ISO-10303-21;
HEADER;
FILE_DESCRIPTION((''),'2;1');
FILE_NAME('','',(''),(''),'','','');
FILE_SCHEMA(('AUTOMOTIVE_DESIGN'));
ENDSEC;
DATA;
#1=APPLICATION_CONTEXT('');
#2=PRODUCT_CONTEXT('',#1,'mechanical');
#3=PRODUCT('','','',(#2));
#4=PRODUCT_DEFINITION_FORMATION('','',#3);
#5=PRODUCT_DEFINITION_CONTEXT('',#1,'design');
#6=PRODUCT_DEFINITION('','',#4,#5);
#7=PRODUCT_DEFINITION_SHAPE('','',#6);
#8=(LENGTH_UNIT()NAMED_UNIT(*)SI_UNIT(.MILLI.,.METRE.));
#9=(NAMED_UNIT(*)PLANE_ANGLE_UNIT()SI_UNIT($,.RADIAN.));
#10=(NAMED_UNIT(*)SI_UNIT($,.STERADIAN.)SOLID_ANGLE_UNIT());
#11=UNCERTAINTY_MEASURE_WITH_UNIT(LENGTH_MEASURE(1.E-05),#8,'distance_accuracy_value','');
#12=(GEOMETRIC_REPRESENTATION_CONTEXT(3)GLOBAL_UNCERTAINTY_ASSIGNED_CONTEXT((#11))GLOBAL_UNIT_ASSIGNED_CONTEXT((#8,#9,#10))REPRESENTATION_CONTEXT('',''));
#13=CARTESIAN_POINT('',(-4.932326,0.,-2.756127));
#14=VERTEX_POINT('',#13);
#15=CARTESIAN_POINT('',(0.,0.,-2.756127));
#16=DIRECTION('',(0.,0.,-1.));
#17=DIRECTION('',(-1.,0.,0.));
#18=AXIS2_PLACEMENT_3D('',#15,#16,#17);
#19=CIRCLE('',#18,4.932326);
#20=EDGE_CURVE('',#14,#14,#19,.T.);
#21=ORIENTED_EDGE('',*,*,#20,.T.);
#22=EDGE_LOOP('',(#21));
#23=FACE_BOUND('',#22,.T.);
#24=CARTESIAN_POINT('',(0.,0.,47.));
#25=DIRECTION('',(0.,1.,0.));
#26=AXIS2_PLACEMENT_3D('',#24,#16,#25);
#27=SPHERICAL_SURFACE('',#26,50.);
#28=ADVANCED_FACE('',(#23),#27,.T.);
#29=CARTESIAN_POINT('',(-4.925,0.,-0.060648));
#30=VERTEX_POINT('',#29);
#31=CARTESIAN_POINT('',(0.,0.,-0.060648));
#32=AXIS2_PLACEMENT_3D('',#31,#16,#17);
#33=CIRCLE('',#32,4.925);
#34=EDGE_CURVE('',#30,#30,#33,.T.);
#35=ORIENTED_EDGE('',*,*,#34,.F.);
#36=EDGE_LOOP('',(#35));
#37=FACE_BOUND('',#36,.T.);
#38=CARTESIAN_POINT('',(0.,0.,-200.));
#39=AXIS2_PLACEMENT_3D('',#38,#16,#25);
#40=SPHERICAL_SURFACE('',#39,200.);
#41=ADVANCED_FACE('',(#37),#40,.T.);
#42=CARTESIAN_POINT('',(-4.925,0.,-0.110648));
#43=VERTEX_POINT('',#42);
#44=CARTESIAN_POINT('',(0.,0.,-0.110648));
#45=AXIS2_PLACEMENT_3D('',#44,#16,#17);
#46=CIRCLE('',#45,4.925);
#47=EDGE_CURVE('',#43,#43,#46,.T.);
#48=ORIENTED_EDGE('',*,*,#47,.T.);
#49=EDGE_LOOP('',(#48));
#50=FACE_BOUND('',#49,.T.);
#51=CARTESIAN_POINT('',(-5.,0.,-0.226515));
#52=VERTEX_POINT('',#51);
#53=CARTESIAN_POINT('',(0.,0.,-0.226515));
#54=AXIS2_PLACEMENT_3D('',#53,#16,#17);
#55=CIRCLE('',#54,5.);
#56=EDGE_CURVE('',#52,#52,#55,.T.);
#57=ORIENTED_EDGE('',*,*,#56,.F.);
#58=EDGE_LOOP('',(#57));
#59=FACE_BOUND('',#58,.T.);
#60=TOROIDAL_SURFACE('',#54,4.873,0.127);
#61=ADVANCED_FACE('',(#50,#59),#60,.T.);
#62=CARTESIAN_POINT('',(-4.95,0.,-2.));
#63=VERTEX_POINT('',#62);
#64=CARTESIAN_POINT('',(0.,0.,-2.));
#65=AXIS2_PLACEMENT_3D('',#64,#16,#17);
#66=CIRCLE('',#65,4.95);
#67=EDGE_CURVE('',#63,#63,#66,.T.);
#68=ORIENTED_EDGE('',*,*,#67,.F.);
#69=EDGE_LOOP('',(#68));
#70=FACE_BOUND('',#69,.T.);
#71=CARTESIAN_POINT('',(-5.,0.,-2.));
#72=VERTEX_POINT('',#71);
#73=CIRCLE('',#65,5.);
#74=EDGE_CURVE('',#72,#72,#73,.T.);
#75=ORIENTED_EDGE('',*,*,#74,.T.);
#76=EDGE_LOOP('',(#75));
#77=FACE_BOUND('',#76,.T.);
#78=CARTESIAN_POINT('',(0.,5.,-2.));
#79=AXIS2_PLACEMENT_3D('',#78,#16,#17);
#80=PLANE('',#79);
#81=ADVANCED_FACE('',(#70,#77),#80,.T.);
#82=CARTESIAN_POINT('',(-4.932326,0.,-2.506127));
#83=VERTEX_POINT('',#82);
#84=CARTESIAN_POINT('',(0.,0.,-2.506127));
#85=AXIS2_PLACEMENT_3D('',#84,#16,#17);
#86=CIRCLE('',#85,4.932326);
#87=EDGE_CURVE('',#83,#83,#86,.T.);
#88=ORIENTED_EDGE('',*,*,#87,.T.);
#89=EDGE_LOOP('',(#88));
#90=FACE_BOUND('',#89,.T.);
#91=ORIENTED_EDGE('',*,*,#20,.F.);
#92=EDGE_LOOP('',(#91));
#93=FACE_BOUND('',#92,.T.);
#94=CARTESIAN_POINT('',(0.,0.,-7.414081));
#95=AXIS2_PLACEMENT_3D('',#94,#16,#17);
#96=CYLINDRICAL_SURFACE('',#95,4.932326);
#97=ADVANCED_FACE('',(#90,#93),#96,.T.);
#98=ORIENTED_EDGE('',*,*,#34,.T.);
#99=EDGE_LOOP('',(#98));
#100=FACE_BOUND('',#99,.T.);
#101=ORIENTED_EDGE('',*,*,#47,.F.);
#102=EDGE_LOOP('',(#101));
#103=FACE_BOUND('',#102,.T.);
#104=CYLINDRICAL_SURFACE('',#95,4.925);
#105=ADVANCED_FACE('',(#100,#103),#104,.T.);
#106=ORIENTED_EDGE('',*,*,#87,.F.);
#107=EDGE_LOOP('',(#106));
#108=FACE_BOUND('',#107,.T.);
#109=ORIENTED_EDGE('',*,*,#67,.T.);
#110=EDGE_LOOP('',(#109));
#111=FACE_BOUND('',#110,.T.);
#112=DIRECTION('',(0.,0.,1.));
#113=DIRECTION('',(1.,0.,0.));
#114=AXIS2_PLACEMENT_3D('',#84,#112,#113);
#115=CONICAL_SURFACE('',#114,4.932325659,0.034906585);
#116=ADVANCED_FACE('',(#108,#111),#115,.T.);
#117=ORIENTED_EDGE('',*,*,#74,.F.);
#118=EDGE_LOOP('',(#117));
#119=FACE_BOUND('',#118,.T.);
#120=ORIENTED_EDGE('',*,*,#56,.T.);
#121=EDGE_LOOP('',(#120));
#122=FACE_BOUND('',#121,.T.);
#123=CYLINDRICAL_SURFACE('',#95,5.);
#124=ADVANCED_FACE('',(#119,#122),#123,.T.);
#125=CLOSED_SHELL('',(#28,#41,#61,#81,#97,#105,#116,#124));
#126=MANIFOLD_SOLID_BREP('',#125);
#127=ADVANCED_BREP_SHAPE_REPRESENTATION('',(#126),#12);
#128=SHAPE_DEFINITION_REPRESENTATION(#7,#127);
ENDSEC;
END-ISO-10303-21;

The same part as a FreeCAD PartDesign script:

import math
import FreeCAD as App
import Part
import Sketcher

V = App.Vector
Q = App.Units.Quantity

doc = App.newDocument("Part")
body = doc.addObject("PartDesign::Body", "Body")

# Sketch on YZ plane
sketch1 = body.newObject("Sketcher::SketchObject", "Sketch")
sketch1.AttachmentSupport = (doc.getObject("YZ_Plane"), [""])
sketch1.MapMode = "FlatFace"
sketch1.addGeometry([
    Part.LineSegment(V(0, 0, 0), V(0, -3, 0)),  # 0
    Part.ArcOfCircle(Part.Circle(V(0, 47, 0), V(0, 0, 1), 50), math.radians(-90), math.radians(-84.34)),  # 1
    Part.LineSegment(V(4.932, -2.756, 0), V(4.932, -2.506, 0)),  # 2
    Part.LineSegment(V(4.932, -2.506, 0), V(4.95, -2, 0)),  # 3
    Part.LineSegment(V(4.95, -2, 0), V(5, -2, 0)),  # 4
    Part.LineSegment(V(5, -2, 0), V(5, -0.227, 0)),  # 5
    Part.ArcOfCircle(Part.Circle(V(4.873, -0.227, 0), V(0, 0, 1), 0.127), math.radians(0), math.radians(66)),  # 6
    Part.LineSegment(V(4.925, -0.111, 0), V(4.925, -0.061, 0)),  # 7
    Part.ArcOfCircle(Part.Circle(V(0, -200, 0), V(0, 0, 1), 200), math.radians(88.59), math.radians(90)),  # 8
], False)
sketch1.addConstraint([
    Sketcher.Constraint("Coincident", 0, 2, 1, 1),
    Sketcher.Constraint("Coincident", 1, 2, 2, 1),
    Sketcher.Constraint("Coincident", 2, 2, 3, 1),
    Sketcher.Constraint("Coincident", 3, 2, 4, 1),
    Sketcher.Constraint("Coincident", 4, 2, 5, 1),
    Sketcher.Constraint("Tangent", 5, 2, 6, 1),
    Sketcher.Constraint("Coincident", 6, 2, 7, 1),
    Sketcher.Constraint("Coincident", 7, 2, 8, 1),
    Sketcher.Constraint("Coincident", 8, 2, 0, 1),
    Sketcher.Constraint("Vertical", 0),
    Sketcher.Constraint("Vertical", 2),
    Sketcher.Constraint("Horizontal", 4),
    Sketcher.Constraint("Vertical", 5),
    Sketcher.Constraint("Vertical", 7),
    Sketcher.Constraint("Coincident", 8, 2, -1, 1),
    Sketcher.Constraint("PointOnObject", 1, 3, -2),
    Sketcher.Constraint("PointOnObject", 8, 3, -2),
    Sketcher.Constraint("Equal", 4, 7),
    Sketcher.Constraint("Radius", 1, Q("50 mm")),
    Sketcher.Constraint("DistanceY", 0, 2, 0, 1, Q("3 mm")),
    Sketcher.Constraint("Angle", 3, Q("88 deg")),
    Sketcher.Constraint("DistanceY", 3, 2, -1, 1, Q("2 mm")),
    Sketcher.Constraint("DistanceX", -1, 1, 4, 2, Q("5 mm")),
    Sketcher.Constraint("Radius", 6, Q("0.127 mm")),
    Sketcher.Constraint("DistanceX", 4, 1, 4, 2, Q("0.05 mm")),
    Sketcher.Constraint("DistanceY", 2, 1, 2, 2, Q("0.25 mm")),
    Sketcher.Constraint("DistanceX", -1, 1, 6, 2, Q("4.925 mm")),
    Sketcher.Constraint("Radius", 8, Q("199.999997 mm")),
])
revolution = body.newObject("PartDesign::Revolution", "Revolution")
revolution.Profile = sketch1
revolution.ReferenceAxis = (sketch1, ["V_Axis"])
revolution.Angle = 360

doc.recompute()
